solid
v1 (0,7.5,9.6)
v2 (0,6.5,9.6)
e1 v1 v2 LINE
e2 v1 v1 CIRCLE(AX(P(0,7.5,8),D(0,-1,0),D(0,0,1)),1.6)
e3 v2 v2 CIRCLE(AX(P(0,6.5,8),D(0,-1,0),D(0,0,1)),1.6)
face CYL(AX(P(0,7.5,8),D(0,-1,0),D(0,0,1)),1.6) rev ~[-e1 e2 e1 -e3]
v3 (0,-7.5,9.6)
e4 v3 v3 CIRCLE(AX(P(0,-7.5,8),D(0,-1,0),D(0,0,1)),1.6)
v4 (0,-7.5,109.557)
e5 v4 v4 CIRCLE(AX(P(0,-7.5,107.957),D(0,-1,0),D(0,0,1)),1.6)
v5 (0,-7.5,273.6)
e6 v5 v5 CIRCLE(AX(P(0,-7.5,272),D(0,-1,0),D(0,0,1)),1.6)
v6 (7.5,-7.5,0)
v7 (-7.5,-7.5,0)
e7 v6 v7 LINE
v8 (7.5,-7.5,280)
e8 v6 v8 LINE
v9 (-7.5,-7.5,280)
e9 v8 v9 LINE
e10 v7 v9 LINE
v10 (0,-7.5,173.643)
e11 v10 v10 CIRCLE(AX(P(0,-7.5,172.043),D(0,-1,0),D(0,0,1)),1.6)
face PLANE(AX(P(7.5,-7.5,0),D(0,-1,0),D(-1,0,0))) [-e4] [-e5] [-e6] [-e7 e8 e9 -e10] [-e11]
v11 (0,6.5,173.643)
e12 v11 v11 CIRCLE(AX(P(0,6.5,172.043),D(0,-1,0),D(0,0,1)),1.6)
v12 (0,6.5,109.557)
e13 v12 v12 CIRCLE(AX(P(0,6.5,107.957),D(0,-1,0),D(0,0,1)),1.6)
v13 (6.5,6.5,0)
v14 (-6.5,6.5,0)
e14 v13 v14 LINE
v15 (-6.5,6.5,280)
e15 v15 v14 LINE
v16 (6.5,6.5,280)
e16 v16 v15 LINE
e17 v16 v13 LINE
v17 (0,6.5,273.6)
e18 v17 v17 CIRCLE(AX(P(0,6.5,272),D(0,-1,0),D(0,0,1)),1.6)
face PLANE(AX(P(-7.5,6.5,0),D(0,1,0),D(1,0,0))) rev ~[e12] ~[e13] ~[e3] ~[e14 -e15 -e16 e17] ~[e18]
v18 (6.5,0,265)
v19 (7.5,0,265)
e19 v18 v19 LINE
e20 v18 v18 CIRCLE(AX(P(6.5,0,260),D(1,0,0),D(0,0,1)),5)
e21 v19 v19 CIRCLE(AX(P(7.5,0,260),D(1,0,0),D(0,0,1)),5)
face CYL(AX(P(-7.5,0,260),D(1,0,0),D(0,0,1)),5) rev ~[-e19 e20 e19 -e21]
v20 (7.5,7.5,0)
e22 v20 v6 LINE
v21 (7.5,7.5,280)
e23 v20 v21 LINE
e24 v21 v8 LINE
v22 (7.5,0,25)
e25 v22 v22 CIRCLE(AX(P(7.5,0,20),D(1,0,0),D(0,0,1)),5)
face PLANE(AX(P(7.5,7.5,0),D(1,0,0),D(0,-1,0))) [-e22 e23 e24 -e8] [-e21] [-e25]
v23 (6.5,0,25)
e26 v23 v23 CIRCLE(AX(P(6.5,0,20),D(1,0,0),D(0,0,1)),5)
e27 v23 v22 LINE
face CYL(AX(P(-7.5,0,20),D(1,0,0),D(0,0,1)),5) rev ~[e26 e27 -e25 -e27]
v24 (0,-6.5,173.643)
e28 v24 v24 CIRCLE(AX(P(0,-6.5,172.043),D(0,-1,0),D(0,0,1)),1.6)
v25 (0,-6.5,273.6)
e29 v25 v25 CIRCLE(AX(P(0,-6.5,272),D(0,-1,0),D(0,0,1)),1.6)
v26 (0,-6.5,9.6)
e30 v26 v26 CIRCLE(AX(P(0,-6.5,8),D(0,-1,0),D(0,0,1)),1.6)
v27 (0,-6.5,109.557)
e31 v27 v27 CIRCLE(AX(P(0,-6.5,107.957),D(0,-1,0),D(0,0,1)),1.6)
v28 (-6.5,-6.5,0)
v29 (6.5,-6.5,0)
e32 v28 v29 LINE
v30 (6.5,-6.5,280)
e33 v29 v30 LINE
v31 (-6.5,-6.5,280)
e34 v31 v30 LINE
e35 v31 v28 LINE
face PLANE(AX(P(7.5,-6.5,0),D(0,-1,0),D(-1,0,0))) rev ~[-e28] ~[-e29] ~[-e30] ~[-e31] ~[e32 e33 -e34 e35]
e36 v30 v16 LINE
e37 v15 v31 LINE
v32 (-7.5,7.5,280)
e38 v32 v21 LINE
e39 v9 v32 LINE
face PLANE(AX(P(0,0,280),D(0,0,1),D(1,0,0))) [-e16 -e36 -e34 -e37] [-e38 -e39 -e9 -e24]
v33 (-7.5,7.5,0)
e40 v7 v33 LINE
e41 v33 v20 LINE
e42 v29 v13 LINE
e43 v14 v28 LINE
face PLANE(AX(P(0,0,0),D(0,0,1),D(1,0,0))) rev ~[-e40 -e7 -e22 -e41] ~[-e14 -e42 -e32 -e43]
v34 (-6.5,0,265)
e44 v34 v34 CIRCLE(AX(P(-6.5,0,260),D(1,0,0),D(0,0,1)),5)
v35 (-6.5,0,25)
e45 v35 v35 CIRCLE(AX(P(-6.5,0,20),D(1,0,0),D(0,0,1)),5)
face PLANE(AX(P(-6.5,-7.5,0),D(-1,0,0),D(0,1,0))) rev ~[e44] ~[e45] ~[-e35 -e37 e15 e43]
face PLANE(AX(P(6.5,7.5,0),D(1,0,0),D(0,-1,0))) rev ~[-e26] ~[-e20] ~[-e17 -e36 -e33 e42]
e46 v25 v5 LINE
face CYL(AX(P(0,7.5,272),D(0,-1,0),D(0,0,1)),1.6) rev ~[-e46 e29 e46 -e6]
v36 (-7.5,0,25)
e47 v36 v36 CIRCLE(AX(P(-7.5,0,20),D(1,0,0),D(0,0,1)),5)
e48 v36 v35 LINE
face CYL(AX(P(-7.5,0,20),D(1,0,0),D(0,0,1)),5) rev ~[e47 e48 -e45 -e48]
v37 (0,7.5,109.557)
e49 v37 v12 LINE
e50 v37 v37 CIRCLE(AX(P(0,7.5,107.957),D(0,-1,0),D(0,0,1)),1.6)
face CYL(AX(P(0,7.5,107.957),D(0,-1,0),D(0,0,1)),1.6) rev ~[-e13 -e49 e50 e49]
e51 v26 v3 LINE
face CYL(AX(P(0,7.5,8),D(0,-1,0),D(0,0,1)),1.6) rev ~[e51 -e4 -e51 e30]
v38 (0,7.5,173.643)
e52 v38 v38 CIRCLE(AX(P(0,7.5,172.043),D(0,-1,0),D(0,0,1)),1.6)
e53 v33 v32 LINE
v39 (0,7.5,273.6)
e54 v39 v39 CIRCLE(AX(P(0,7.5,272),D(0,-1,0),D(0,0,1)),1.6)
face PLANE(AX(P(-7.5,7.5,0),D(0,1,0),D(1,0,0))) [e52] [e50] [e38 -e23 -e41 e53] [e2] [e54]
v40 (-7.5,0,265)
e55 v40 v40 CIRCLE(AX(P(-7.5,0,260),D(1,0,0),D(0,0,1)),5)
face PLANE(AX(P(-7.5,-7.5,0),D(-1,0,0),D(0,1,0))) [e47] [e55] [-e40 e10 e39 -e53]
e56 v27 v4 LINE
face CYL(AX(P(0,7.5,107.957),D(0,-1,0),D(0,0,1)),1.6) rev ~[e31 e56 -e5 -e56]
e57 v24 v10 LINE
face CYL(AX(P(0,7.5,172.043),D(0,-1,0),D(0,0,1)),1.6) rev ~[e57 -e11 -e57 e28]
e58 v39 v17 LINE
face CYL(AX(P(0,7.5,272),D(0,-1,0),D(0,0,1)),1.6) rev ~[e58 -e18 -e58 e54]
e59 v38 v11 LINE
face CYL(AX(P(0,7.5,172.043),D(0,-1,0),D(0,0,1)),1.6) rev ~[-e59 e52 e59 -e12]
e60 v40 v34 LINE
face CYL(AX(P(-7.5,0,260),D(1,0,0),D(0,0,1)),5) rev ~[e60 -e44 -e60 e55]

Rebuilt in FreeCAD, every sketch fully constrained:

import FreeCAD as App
import Part
import Sketcher

V = App.Vector
Q = App.Units.Quantity


def faces_at(feature, points):
    """Names of the faces that lie closest to the given points."""
    faces = feature.Shape.Faces
    near = lambda p: min(range(len(faces)), key=lambda i: faces[i].distToShape(Part.Vertex(*p))[0])
    return sorted({f"Face{near(p) + 1}" for p in points})


def add_polygon(sketch, points):
    """Adds a closed chain of lines whose ends are joined by coincident constraints."""
    first, n = sketch.GeometryCount, len(points)
    for a, b in zip(points, points[1:] + points[:1]):
        sketch.addGeometry(Part.LineSegment(App.Vector(*a, 0), App.Vector(*b, 0)), False)
    for i in range(n):
        sketch.addConstraint(Sketcher.Constraint("Coincident", first + i, 2, first + (i + 1) % n, 1))

doc = App.newDocument("Part")
body = doc.addObject("PartDesign::Body", "Body")

# Sketch on XY plane
sketch1 = body.newObject("Sketcher::SketchObject", "Sketch")
sketch1.AttachmentSupport = (doc.getObject("XY_Plane"), [""])
sketch1.MapMode = "FlatFace"
add_polygon(sketch1, [(-7.5, -7.5), (7.5, -7.5), (7.5, 7.5), (-7.5, 7.5)])  # lines 0-3
sketch1.addConstraint(Sketcher.Constraint("Horizontal", 0))
sketch1.addConstraint(Sketcher.Constraint("Vertical", 1))
sketch1.addConstraint(Sketcher.Constraint("Horizontal", 2))
sketch1.addConstraint(Sketcher.Constraint("Vertical", 3))
sketch1.addConstraint(Sketcher.Constraint("Symmetric", 0, 2, 2, 2, -1, 1))
sketch1.addConstraint(Sketcher.Constraint("Equal", 2, 1))
sketch1.addConstraint(Sketcher.Constraint("DistanceX", 0, 1, 0, 2, Q("15 mm")))
pad1 = body.newObject("PartDesign::Pad", "Pad")
pad1.Profile = sketch1
pad1.Length = 280
doc.recompute()

thickness = body.newObject("PartDesign::Thickness", "Thickness")
thickness.Base = (pad1, faces_at(pad1, [(2.5, -2.5, 0), (2.5, -2.5, 280)]))
thickness.Value = 1
thickness.Reversed = True
thickness.Join = "Intersection"

# Sketch on XZ plane
sketch2 = body.newObject("Sketcher::SketchObject", "Sketch001")
sketch2.AttachmentSupport = (doc.getObject("XZ_Plane"), [""])
sketch2.MapMode = "FlatFace"
sketch2.AttachmentOffset = App.Placement(V(0, 0, -7.5), App.Rotation())
sketch2.addGeometry(Part.Circle(V(0, 172.043, 0), V(0, 0, 1), 1.6), False)
sketch2.addGeometry(Part.Circle(V(0, 107.957, 0), V(0, 0, 1), 1.6), False)
sketch2.addGeometry(Part.Circle(V(0, 272, 0), V(0, 0, 1), 1.6), False)
sketch2.addGeometry(Part.Circle(V(0, 8, 0), V(0, 0, 1), 1.6), False)
sketch2.addConstraint(Sketcher.Constraint("Equal", 0, 1))
sketch2.addConstraint(Sketcher.Constraint("Equal", 1, 2))
sketch2.addConstraint(Sketcher.Constraint("Equal", 2, 3))
sketch2.addConstraint(Sketcher.Constraint("PointOnObject", 0, 3, -2))
sketch2.addConstraint(Sketcher.Constraint("PointOnObject", 1, 3, -2))
sketch2.addConstraint(Sketcher.Constraint("PointOnObject", 2, 3, -2))
sketch2.addConstraint(Sketcher.Constraint("PointOnObject", 3, 3, -2))
sketch2.addConstraint(Sketcher.Constraint("Diameter", 0, Q("3.2 mm")))
sketch2.addConstraint(Sketcher.Constraint("DistanceY", -1, 1, 2, 3, Q("272 mm")))
sketch2.addConstraint(Sketcher.Constraint("DistanceY", -1, 1, 3, 3, Q("8 mm")))
sketch2.addConstraint(Sketcher.Constraint("DistanceY", -1, 1, 0, 3, Q("172.043 mm")))
sketch2.addConstraint(Sketcher.Constraint("DistanceY", -1, 1, 1, 3, Q("107.957 mm")))
doc.recompute()
hole = body.newObject("PartDesign::Hole", "Hole")
hole.Profile = sketch2
hole.ThreadType = "None"
hole.Diameter = 3.2
hole.DepthType = "ThroughAll"
hole.Reversed = True

# Sketch on YZ plane
sketch3 = body.newObject("Sketcher::SketchObject", "Sketch002")
sketch3.AttachmentSupport = (doc.getObject("YZ_Plane"), [""])
sketch3.MapMode = "FlatFace"
sketch3.AttachmentOffset = App.Placement(V(0, 0, -7.5), App.Rotation())
sketch3.addGeometry(Part.Circle(V(0, 260, 0), V(0, 0, 1), 5), False)
sketch3.addGeometry(Part.Circle(V(0, 20, 0), V(0, 0, 1), 5), False)
sketch3.addConstraint(Sketcher.Constraint("Equal", 0, 1))
sketch3.addConstraint(Sketcher.Constraint("PointOnObject", 0, 3, -2))
sketch3.addConstraint(Sketcher.Constraint("PointOnObject", 1, 3, -2))
sketch3.addConstraint(Sketcher.Constraint("Diameter", 0, Q("10 mm")))
sketch3.addConstraint(Sketcher.Constraint("DistanceY", -1, 1, 0, 3, Q("260 mm")))
sketch3.addConstraint(Sketcher.Constraint("DistanceY", -1, 1, 1, 3, Q("20 mm")))
doc.recompute()
hole2 = body.newObject("PartDesign::Hole", "Hole001")
hole2.Profile = sketch3
hole2.ThreadType = "None"
hole2.Diameter = 10
hole2.DepthType = "ThroughAll"
hole2.Reversed = True

doc.recompute()
